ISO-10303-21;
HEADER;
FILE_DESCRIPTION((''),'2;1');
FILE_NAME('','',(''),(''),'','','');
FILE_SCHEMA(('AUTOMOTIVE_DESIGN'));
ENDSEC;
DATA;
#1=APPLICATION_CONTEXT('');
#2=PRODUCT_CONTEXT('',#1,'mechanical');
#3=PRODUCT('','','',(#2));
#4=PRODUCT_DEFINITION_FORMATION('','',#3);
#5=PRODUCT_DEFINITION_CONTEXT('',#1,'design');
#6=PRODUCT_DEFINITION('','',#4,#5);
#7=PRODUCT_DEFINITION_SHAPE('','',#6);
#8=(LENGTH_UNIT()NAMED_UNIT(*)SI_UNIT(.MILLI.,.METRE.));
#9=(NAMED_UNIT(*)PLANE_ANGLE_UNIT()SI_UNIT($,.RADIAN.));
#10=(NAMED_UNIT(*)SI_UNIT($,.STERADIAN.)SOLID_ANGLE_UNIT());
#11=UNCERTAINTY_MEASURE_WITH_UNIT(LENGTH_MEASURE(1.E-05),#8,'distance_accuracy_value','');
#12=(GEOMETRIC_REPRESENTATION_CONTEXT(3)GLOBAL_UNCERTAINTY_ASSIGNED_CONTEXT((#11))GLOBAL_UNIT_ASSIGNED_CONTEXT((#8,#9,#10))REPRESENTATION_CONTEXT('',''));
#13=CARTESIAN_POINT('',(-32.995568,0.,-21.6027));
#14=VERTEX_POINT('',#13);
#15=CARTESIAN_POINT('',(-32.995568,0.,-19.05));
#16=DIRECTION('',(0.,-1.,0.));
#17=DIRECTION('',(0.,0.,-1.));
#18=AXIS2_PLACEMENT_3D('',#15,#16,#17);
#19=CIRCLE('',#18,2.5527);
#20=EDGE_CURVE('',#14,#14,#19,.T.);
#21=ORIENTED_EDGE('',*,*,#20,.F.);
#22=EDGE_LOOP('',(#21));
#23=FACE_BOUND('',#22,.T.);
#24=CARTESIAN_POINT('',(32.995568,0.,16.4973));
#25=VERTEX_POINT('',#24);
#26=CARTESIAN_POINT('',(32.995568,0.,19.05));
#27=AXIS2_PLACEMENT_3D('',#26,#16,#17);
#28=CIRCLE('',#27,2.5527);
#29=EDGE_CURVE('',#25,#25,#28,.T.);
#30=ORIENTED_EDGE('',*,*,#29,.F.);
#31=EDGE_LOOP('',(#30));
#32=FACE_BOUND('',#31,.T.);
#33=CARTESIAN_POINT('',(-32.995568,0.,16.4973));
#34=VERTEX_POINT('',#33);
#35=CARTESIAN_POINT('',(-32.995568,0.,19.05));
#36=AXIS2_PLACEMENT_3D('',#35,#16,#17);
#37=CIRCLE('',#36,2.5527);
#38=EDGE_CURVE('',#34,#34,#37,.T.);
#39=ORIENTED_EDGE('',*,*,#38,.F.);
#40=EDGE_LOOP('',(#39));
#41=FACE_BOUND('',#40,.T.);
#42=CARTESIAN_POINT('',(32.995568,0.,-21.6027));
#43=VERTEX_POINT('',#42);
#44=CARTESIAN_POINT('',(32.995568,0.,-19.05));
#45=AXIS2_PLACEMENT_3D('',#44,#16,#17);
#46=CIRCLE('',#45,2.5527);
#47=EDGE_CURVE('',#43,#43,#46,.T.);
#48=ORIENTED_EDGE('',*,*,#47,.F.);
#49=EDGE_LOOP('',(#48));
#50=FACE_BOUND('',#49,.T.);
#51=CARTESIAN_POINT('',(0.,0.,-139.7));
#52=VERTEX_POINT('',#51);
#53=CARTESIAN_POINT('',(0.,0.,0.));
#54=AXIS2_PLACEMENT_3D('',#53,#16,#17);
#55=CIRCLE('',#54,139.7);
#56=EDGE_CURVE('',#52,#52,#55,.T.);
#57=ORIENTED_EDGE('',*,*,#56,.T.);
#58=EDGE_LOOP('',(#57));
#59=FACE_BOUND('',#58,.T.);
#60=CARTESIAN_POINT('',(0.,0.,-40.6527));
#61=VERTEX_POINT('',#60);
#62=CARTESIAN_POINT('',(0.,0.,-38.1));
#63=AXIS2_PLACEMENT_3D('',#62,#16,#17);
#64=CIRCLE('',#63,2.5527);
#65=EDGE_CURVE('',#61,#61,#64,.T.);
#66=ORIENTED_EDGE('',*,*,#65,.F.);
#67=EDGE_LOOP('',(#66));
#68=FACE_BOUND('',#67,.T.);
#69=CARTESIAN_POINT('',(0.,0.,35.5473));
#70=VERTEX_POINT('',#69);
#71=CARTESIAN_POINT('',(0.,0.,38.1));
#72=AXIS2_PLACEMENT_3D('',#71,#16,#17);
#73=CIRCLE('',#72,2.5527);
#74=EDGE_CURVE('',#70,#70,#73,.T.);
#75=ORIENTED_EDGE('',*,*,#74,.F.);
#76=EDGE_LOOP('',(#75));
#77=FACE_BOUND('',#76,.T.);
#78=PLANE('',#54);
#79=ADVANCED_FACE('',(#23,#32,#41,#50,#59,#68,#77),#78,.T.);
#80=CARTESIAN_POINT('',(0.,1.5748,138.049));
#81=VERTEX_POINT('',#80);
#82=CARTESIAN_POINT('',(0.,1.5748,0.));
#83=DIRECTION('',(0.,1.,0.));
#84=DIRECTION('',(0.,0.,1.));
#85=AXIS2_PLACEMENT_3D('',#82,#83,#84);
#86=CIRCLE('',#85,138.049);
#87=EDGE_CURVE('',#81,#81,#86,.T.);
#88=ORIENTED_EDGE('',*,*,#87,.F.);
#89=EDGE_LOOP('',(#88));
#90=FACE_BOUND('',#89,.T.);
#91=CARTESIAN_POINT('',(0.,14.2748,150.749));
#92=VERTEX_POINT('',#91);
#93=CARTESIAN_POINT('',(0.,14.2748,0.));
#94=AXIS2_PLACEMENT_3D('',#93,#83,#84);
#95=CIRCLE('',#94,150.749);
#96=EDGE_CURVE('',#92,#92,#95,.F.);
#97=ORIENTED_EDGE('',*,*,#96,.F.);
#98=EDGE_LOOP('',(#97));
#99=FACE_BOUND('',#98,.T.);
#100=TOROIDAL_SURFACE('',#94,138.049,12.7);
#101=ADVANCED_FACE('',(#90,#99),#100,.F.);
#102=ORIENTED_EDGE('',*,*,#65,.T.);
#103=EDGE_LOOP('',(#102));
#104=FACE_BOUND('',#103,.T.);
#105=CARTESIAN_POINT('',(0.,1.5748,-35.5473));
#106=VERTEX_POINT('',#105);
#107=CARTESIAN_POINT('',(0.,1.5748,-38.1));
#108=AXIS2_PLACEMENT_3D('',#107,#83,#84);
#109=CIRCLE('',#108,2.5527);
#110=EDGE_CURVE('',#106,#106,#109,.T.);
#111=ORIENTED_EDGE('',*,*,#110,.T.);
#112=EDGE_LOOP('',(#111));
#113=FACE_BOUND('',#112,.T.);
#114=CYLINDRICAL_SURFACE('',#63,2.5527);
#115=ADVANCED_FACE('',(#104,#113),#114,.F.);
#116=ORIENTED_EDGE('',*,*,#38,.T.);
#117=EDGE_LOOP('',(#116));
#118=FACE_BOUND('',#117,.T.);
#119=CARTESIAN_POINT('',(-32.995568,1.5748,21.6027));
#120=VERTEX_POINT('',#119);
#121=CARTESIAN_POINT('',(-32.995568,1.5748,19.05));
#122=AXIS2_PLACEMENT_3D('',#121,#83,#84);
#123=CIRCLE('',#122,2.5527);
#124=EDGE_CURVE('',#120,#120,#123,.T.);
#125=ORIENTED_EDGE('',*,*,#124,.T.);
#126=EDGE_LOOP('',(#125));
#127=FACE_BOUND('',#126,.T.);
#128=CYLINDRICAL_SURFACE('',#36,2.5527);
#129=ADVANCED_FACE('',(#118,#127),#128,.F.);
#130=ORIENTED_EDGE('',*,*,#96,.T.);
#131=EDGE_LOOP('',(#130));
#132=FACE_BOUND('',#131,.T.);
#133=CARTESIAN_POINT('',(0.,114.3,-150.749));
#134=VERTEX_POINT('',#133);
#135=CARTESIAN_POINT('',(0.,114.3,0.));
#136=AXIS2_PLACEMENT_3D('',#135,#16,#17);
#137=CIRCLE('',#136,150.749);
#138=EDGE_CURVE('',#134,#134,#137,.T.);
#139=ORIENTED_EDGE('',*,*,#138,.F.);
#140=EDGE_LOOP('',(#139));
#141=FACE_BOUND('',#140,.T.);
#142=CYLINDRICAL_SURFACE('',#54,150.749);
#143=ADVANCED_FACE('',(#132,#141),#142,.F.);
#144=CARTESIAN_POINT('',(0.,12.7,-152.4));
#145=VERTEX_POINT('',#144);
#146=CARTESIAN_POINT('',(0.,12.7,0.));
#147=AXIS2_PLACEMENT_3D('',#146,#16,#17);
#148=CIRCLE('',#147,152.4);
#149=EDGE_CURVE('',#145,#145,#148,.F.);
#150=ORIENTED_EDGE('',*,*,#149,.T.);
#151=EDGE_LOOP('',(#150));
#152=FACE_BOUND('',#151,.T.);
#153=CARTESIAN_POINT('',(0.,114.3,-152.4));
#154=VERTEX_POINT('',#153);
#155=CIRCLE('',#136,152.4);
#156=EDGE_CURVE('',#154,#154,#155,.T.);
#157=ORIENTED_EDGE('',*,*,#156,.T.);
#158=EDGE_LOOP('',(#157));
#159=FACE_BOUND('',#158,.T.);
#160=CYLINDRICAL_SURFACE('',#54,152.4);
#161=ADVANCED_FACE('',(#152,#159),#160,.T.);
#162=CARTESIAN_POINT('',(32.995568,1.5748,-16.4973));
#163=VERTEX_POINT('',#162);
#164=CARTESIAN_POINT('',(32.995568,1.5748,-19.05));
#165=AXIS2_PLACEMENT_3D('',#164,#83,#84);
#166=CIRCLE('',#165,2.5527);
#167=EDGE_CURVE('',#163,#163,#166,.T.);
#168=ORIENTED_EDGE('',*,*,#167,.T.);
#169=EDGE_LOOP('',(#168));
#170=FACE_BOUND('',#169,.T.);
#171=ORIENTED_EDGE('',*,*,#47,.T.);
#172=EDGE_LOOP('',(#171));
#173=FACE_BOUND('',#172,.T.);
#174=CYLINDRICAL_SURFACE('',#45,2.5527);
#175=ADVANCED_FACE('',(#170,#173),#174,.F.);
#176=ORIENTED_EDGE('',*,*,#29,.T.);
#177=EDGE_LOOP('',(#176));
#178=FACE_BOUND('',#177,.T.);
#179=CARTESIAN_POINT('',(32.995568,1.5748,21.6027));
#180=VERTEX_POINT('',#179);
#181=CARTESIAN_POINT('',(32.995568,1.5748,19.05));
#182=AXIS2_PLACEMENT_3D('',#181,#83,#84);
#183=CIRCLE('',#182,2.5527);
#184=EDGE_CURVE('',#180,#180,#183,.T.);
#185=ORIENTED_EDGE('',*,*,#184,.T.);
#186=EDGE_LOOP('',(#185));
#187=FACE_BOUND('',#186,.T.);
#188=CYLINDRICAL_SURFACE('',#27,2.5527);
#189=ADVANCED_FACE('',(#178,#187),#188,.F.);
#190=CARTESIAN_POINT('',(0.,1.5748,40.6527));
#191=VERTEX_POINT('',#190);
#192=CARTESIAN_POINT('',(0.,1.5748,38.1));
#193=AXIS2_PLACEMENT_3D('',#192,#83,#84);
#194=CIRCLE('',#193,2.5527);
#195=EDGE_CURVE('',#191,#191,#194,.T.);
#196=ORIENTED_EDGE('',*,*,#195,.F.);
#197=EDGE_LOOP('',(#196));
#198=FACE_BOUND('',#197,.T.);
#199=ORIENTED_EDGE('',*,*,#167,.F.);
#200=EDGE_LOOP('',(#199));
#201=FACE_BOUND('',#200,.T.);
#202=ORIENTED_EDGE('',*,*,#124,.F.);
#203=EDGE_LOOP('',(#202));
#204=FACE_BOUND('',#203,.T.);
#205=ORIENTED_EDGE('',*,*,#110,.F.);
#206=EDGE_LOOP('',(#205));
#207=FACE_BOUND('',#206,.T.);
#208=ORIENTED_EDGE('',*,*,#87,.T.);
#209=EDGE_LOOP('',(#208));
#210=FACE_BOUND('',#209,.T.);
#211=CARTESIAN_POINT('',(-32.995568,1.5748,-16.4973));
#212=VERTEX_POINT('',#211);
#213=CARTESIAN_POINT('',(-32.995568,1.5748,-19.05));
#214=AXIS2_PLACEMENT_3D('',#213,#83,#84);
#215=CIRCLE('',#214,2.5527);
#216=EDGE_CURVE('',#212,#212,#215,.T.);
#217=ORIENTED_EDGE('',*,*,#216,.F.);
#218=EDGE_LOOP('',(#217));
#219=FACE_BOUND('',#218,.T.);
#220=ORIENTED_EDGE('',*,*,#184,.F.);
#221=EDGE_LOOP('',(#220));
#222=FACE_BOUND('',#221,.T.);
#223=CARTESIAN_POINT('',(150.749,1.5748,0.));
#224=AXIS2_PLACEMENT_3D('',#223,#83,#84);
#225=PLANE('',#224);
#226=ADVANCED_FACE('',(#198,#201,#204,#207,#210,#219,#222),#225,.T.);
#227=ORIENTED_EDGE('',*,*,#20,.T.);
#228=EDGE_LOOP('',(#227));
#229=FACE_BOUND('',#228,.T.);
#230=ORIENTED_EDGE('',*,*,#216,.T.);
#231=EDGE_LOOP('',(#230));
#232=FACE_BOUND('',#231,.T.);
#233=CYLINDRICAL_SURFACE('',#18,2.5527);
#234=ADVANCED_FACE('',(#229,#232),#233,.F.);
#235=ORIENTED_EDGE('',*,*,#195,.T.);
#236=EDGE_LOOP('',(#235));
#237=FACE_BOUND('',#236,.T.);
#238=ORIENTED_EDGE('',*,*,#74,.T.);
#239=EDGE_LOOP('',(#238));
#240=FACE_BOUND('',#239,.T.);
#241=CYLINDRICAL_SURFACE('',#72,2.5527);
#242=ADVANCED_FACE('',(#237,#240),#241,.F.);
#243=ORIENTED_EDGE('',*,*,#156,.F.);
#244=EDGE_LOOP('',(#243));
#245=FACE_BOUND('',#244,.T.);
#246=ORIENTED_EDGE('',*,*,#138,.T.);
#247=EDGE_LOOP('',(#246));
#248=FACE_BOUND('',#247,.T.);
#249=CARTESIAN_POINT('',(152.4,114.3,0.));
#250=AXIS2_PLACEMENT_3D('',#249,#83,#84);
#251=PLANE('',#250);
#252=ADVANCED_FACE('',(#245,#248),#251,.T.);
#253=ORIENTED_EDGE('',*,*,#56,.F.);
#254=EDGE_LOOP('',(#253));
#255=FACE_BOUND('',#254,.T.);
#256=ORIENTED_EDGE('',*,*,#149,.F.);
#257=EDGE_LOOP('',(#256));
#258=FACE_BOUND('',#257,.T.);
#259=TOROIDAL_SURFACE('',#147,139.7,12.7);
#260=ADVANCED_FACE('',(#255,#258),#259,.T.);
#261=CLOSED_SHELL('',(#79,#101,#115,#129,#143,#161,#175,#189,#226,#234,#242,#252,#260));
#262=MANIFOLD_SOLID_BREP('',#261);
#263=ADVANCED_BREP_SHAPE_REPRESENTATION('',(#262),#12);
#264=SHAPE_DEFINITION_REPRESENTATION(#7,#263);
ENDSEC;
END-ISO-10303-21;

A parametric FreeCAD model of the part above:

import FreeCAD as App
import Part
import Sketcher
from FreeCAD import Vector
Q = App.Units.Quantity


def edges_at(feature, points):
    """Names of the edges that pass closest to the given points."""
    edges = feature.Shape.Edges
    near = lambda p: min(range(len(edges)), key=lambda i: edges[i].distToShape(Part.Vertex(*p))[0])
    return sorted({f"Edge{near(p) + 1}" for p in points})

doc = App.newDocument("Part")
params = doc.addObject("Spreadsheet::Sheet", "Params")
for row, (alias, value) in enumerate([
    ("sketch1_width", "6 in"),
    ("sketch1_height", "4.5 in"),
    ("sketch1_width2", "0.065 in"),
    ("sketch1_height2", "4.438 in"),
    ("revolution_angle", "360 deg"),
    ("fillet_radius", "0.5 in"),
    ("sketch2_diameter", "0.201 in"),
    ("hole_diameter", "0.201 in"),
], start=1):
    params.set(f"A{row}", alias)
    params.set(f"B{row}", "=" + value)
    params.setAlias(f"B{row}", alias)

body = doc.addObject("PartDesign::Body", "Body")

# Sketch on XY plane
sketch1 = doc.addObject("Sketcher::SketchObject", "Sketch")
body.addObject(sketch1)
sketch1.AttachmentSupport = (doc.XY_Plane, [""])
sketch1.MapMode = "FlatFace"
sketch1.addGeometry([
    Part.LineSegment(Vector(0, 0, 0), Vector(152.4, 0, 0)),  # 0
    Part.LineSegment(Vector(152.4, 0, 0), Vector(152.4, 114.3, 0)),  # 1
    Part.LineSegment(Vector(152.4, 114.3, 0), Vector(150.749, 114.3, 0)),  # 2
    Part.LineSegment(Vector(150.749, 114.3, 0), Vector(150.749, 1.5748, 0)),  # 3
    Part.LineSegment(Vector(150.749, 1.5748, 0), Vector(0, 1.5748, 0)),  # 4
    Part.LineSegment(Vector(0, 1.5748, 0), Vector(0, 0, 0)),  # 5
], False)
sketch1.addConstraint([
    Sketcher.Constraint("Coincident", 0, 2, 1, 1),
    Sketcher.Constraint("Coincident", 1, 2, 2, 1),
    Sketcher.Constraint("Coincident", 2, 2, 3, 1),
    Sketcher.Constraint("Coincident", 3, 2, 4, 1),
    Sketcher.Constraint("Coincident", 4, 2, 5, 1),
    Sketcher.Constraint("Coincident", 5, 2, 0, 1),
    Sketcher.Constraint("Horizontal", 0),
    Sketcher.Constraint("Vertical", 1),
    Sketcher.Constraint("Horizontal", 2),
    Sketcher.Constraint("Vertical", 3),
    Sketcher.Constraint("Horizontal", 4),
    Sketcher.Constraint("Vertical", 5),
    Sketcher.Constraint("Coincident", 5, 2, -1, 1),
    Sketcher.Constraint("DistanceX", 0, 1, 0, 2, Q("6 in")),
    Sketcher.Constraint("DistanceY", 1, 1, 1, 2, Q("4.5 in")),
    Sketcher.Constraint("DistanceX", 2, 2, 2, 1, Q("0.065 in")),
    Sketcher.Constraint("DistanceY", 3, 2, 3, 1, Q("4.438 in")),
])
sketch1.setExpression("Constraints[13]", "Params.sketch1_width")
sketch1.setExpression("Constraints[14]", "Params.sketch1_height")
sketch1.setExpression("Constraints[15]", "Params.sketch1_width2")
sketch1.setExpression("Constraints[16]", "Params.sketch1_height2")
revolution = doc.addObject("PartDesign::Revolution", "Revolution")
body.addObject(revolution)
revolution.Profile = sketch1
revolution.ReferenceAxis = (sketch1, ["V_Axis"])
revolution.setExpression("Angle", "Params.revolution_angle")
doc.recompute()

fillet = doc.addObject("PartDesign::Fillet", "Fillet")
body.addObject(fillet)
fillet.Base = (revolution, edges_at(revolution, [(0, 1.575, 150.749), (0, 0, 152.4)]))
fillet.setExpression("Radius", "Params.fillet_radius")

# Sketch on XZ plane
sketch2 = doc.addObject("Sketcher::SketchObject", "Sketch001")
body.addObject(sketch2)
sketch2.AttachmentSupport = (doc.XZ_Plane, [""])
sketch2.MapMode = "FlatFace"
sketch2.addGeometry([
    Part.Circle(Vector(0, 38.1, 0), Vector(0, 0, 1), 2.5527),  # 0
    Part.Circle(Vector(32.995568, 19.05, 0), Vector(0, 0, 1), 2.5527),  # 1
    Part.Circle(Vector(32.995568, -19.05, 0), Vector(0, 0, 1), 2.5527),  # 2
    Part.Circle(Vector(0, -38.1, 0), Vector(0, 0, 1), 2.5527),  # 3
    Part.Circle(Vector(-32.995568, -19.05, 0), Vector(0, 0, 1), 2.5527),  # 4
    Part.Circle(Vector(-32.995568, 19.05, 0), Vector(0, 0, 1), 2.5527),  # 5
], False)
sketch2.addConstraint([
    Sketcher.Constraint("Equal", 0, 1),
    Sketcher.Constraint("Equal", 1, 2),
    Sketcher.Constraint("Equal", 2, 3),
    Sketcher.Constraint("Equal", 3, 4),
    Sketcher.Constraint("Equal", 4, 5),
    Sketcher.Constraint("Symmetric", 0, 3, 3, 3, -1, 1),
    Sketcher.Constraint("Symmetric", 1, 3, 4, 3, -1, 1),
    Sketcher.Constraint("Symmetric", 2, 3, 5, 3, -1, 1),
    Sketcher.Constraint("Symmetric", 2, 3, 4, 3, -2),
    Sketcher.Constraint("PointOnObject", 0, 3, -2),
    Sketcher.Constraint("Diameter", 0, Q("0.201 in")),
    Sketcher.Constraint("DistanceY", 3, 3, 0, 3, Q("3 in")),
    Sketcher.Constraint("DistanceY", 2, 3, 1, 3, Q("1.5 in")),
    Sketcher.Constraint("DistanceX", -1, 1, 1, 3, Q("32.995568 mm")),
])
sketch2.setExpression("Constraints[10]", "Params.sketch2_diameter")
doc.recompute()
hole = doc.addObject("PartDesign::Hole", "Hole")
body.addObject(hole)
hole.Profile = sketch2
hole.ThreadType = "None"
hole.setExpression("Diameter", "Params.hole_diameter")
hole.DepthType = "ThroughAll"

doc.recompute()
